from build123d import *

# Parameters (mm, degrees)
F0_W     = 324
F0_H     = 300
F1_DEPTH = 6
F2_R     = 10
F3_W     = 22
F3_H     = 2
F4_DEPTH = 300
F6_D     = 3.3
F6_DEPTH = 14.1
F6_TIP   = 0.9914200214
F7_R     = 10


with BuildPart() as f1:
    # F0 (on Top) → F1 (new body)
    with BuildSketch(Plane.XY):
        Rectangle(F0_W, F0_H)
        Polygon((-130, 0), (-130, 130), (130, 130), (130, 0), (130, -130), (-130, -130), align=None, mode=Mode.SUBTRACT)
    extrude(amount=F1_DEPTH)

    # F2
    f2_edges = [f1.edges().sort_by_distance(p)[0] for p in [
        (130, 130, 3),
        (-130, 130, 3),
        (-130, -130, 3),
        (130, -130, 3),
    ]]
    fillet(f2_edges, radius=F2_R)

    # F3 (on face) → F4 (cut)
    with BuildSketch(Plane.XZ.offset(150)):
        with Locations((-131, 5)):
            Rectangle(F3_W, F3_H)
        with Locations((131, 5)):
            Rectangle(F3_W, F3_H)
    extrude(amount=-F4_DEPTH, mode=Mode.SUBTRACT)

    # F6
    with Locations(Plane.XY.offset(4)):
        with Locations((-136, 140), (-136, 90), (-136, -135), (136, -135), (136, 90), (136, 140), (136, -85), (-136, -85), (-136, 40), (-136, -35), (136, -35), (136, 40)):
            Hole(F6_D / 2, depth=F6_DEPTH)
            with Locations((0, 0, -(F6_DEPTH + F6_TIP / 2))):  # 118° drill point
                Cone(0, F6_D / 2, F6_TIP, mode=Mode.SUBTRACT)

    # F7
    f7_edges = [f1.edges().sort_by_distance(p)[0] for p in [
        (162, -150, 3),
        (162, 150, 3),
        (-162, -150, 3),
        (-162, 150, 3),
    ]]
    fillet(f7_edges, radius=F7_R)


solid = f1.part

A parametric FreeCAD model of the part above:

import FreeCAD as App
import Part
import Sketcher
from FreeCAD import Vector
Q = App.Units.Quantity


def edges_at(feature, points):
    """Names of the edges that pass closest to the given points."""
    edges = feature.Shape.Edges
    near = lambda p: min(range(len(edges)), key=lambda i: edges[i].distToShape(Part.Vertex(*p))[0])
    return sorted({f"Edge{near(p) + 1}" for p in points})

doc = App.newDocument("Part")
body = doc.addObject("PartDesign::Body", "Body")

# Sketch on XY plane
sketch1 = doc.addObject("Sketcher::SketchObject", "Sketch")
body.addObject(sketch1)
sketch1.AttachmentSupport = (doc.XY_Plane, [""])
sketch1.MapMode = "FlatFace"
sketch1.addGeometry(Part.LineSegment(Vector(-162, 150, 0), Vector(-162, -150, 0)), False)
sketch1.addGeometry(Part.LineSegment(Vector(-162, -150, 0), Vector(162, -150, 0)), False)
sketch1.addGeometry(Part.LineSegment(Vector(162, -150, 0), Vector(162, 150, 0)), False)
sketch1.addGeometry(Part.LineSegment(Vector(162, 150, 0), Vector(-162, 150, 0)), False)
sketch1.addGeometry(Part.LineSegment(Vector(-130, -130, 0), Vector(-130, 130, 0)), False)
sketch1.addGeometry(Part.LineSegment(Vector(-130, 130, 0), Vector(130, 130, 0)), False)
sketch1.addGeometry(Part.LineSegment(Vector(130, 130, 0), Vector(130, -130, 0)), False)
sketch1.addGeometry(Part.LineSegment(Vector(130, -130, 0), Vector(-130, -130, 0)), False)
sketch1.addConstraint(Sketcher.Constraint("Coincident", 0, 2, 1, 1))
sketch1.addConstraint(Sketcher.Constraint("Coincident", 1, 2, 2, 1))
sketch1.addConstraint(Sketcher.Constraint("Coincident", 2, 2, 3, 1))
sketch1.addConstraint(Sketcher.Constraint("Coincident", 3, 2, 0, 1))
sketch1.addConstraint(Sketcher.Constraint("Coincident", 4, 2, 5, 1))
sketch1.addConstraint(Sketcher.Constraint("Coincident", 5, 2, 6, 1))
sketch1.addConstraint(Sketcher.Constraint("Coincident", 6, 2, 7, 1))
sketch1.addConstraint(Sketcher.Constraint("Coincident", 7, 2, 4, 1))
sketch1.addConstraint(Sketcher.Constraint("Vertical", 0))
sketch1.addConstraint(Sketcher.Constraint("Horizontal", 1))
sketch1.addConstraint(Sketcher.Constraint("Vertical", 2))
sketch1.addConstraint(Sketcher.Constraint("Horizontal", 3))
sketch1.addConstraint(Sketcher.Constraint("Vertical", 4))
sketch1.addConstraint(Sketcher.Constraint("Horizontal", 5))
sketch1.addConstraint(Sketcher.Constraint("Vertical", 6))
sketch1.addConstraint(Sketcher.Constraint("Horizontal", 7))
sketch1.addConstraint(Sketcher.Constraint("Symmetric", 0, 2, 2, 2, -1, 1))
sketch1.addConstraint(Sketcher.Constraint("Symmetric", 4, 2, 6, 2, -1, 1))
sketch1.addConstraint(Sketcher.Constraint("Equal", 7, 4))
sketch1.addConstraint(Sketcher.Constraint("DistanceX", 1, 1, 1, 2, Q("324 mm")))
sketch1.addConstraint(Sketcher.Constraint("DistanceX", 5, 1, 5, 2, Q("260 mm")))
sketch1.addConstraint(Sketcher.Constraint("DistanceY", 0, 2, 0, 1, Q("300 mm")))
pad1 = doc.addObject("PartDesign::Pad", "Pad")
body.addObject(pad1)
pad1.Profile = sketch1
pad1.Length = 6
doc.recompute()

fillet = doc.addObject("PartDesign::Fillet", "Fillet")
body.addObject(fillet)
fillet.Base = (pad1, edges_at(pad1, [
    (130, 130, 3),
    (-130, 130, 3),
    (-130, -130, 3),
    (130, -130, 3),
]))
fillet.Radius = 10

# Sketch on XZ plane
sketch2 = doc.addObject("Sketcher::SketchObject", "Sketch001")
body.addObject(sketch2)
sketch2.AttachmentSupport = (doc.XZ_Plane, [""])
sketch2.MapMode = "FlatFace"
sketch2.AttachmentOffset = App.Placement(Vector(0, 0, 150), App.Rotation())
sketch2.addGeometry(Part.LineSegment(Vector(-142, 6, 0), Vector(-142, 4, 0)), False)
sketch2.addGeometry(Part.LineSegment(Vector(-142, 4, 0), Vector(-120, 4, 0)), False)
sketch2.addGeometry(Part.LineSegment(Vector(-120, 4, 0), Vector(-120, 6, 0)), False)
sketch2.addGeometry(Part.LineSegment(Vector(-120, 6, 0), Vector(-142, 6, 0)), False)
sketch2.addGeometry(Part.LineSegment(Vector(120, 6, 0), Vector(120, 4, 0)), False)
sketch2.addGeometry(Part.LineSegment(Vector(120, 4, 0), Vector(142, 4, 0)), False)
sketch2.addGeometry(Part.LineSegment(Vector(142, 4, 0), Vector(142, 6, 0)), False)
sketch2.addGeometry(Part.LineSegment(Vector(142, 6, 0), Vector(120, 6, 0)), False)
sketch2.addConstraint(Sketcher.Constraint("Coincident", 0, 2, 1, 1))
sketch2.addConstraint(Sketcher.Constraint("Coincident", 1, 2, 2, 1))
sketch2.addConstraint(Sketcher.Constraint("Coincident", 2, 2, 3, 1))
sketch2.addConstraint(Sketcher.Constraint("Coincident", 3, 2, 0, 1))
sketch2.addConstraint(Sketcher.Constraint("Coincident", 4, 2, 5, 1))
sketch2.addConstraint(Sketcher.Constraint("Coincident", 5, 2, 6, 1))
sketch2.addConstraint(Sketcher.Constraint("Coincident", 6, 2, 7, 1))
sketch2.addConstraint(Sketcher.Constraint("Coincident", 7, 2, 4, 1))
sketch2.addConstraint(Sketcher.Constraint("Vertical", 0))
sketch2.addConstraint(Sketcher.Constraint("Horizontal", 1))
sketch2.addConstraint(Sketcher.Constraint("Vertical", 2))
sketch2.addConstraint(Sketcher.Constraint("Horizontal", 3))
sketch2.addConstraint(Sketcher.Constraint("Vertical", 4))
sketch2.addConstraint(Sketcher.Constraint("Horizontal", 5))
sketch2.addConstraint(Sketcher.Constraint("Vertical", 6))
sketch2.addConstraint(Sketcher.Constraint("Horizontal", 7))
sketch2.addConstraint(Sketcher.Constraint("Symmetric", 1, 2, 4, 2, -2))
sketch2.addConstraint(Sketcher.Constraint("Symmetric", 3, 2, 6, 2, -2))
sketch2.addConstraint(Sketcher.Constraint("DistanceX", 1, 1, 1, 2, Q("22 mm")))
sketch2.addConstraint(Sketcher.Constraint("DistanceY", 0, 2, 0, 1, Q("2 mm")))
sketch2.addConstraint(Sketcher.Constraint("DistanceX", 0, 2, -1, 1, Q("142 mm")))
sketch2.addConstraint(Sketcher.Constraint("DistanceY", -1, 1, 0, 2, Q("4 mm")))
pocket1 = doc.addObject("PartDesign::Pocket", "Pocket")
body.addObject(pocket1)
pocket1.Profile = sketch2
pocket1.Length = 300

# Sketch on XY plane
sketch3 = doc.addObject("Sketcher::SketchObject", "Sketch002")
body.addObject(sketch3)
sketch3.AttachmentSupport = (doc.XY_Plane, [""])
sketch3.MapMode = "FlatFace"
sketch3.AttachmentOffset = App.Placement(Vector(0, 0, 4), App.Rotation())
sketch3.addGeometry(Part.Circle(Vector(-136, 140, 0), Vector(0, 0, 1), 1.6), False)
sketch3.addGeometry(Part.Circle(Vector(-136, 90, 0), Vector(0, 0, 1), 1.6), False)
sketch3.addGeometry(Part.Circle(Vector(-136, -135, 0), Vector(0, 0, 1), 1.6), False)
sketch3.addGeometry(Part.Circle(Vector(136, -135, 0), Vector(0, 0, 1), 1.6), False)
sketch3.addGeometry(Part.Circle(Vector(136, 90, 0), Vector(0, 0, 1), 1.6), False)
sketch3.addGeometry(Part.Circle(Vector(136, 140, 0), Vector(0, 0, 1), 1.6), False)
sketch3.addGeometry(Part.Circle(Vector(136, -85, 0), Vector(0, 0, 1), 1.6), False)
sketch3.addGeometry(Part.Circle(Vector(-136, -85, 0), Vector(0, 0, 1), 1.6), False)
sketch3.addGeometry(Part.Circle(Vector(-136, 40, 0), Vector(0, 0, 1), 1.6), False)
sketch3.addGeometry(Part.Circle(Vector(-136, -35, 0), Vector(0, 0, 1), 1.6), False)
sketch3.addGeometry(Part.Circle(Vector(136, -35, 0), Vector(0, 0, 1), 1.6), False)
sketch3.addGeometry(Part.Circle(Vector(136, 40, 0), Vector(0, 0, 1), 1.6), False)
sketch3.addConstraint(Sketcher.Constraint("Equal", 0, 1))
sketch3.addConstraint(Sketcher.Constraint("Equal", 1, 2))
sketch3.addConstraint(Sketcher.Constraint("Equal", 2, 3))
sketch3.addConstraint(Sketcher.Constraint("Equal", 3, 4))
sketch3.addConstraint(Sketcher.Constraint("Equal", 4, 5))
sketch3.addConstraint(Sketcher.Constraint("Equal", 5, 6))
sketch3.addConstraint(Sketcher.Constraint("Equal", 6, 7))
sketch3.addConstraint(Sketcher.Constraint("Equal", 7, 8))
sketch3.addConstraint(Sketcher.Constraint("Equal", 8, 9))
sketch3.addConstraint(Sketcher.Constraint("Equal", 9, 10))
sketch3.addConstraint(Sketcher.Constraint("Equal", 10, 11))
sketch3.addConstraint(Sketcher.Constraint("Symmetric", 2, 3, 3, 3, -2))
sketch3.addConstraint(Sketcher.Constraint("Symmetric", 1, 3, 4, 3, -2))
sketch3.addConstraint(Sketcher.Constraint("Symmetric", 0, 3, 5, 3, -2))
sketch3.addConstraint(Sketcher.Constraint("Symmetric", 6, 3, 7, 3, -2))
sketch3.addConstraint(Sketcher.Constraint("Symmetric", 9, 3, 10, 3, -2))
sketch3.addConstraint(Sketcher.Constraint("Symmetric", 8, 3, 11, 3, -2))
sketch3.addConstraint(Sketcher.Constraint("Vertical", 0, 3, 1, 3))
sketch3.addConstraint(Sketcher.Constraint("Vertical", 1, 3, 2, 3))
sketch3.addConstraint(Sketcher.Constraint("Vertical", 5, 3, 6, 3))
sketch3.addConstraint(Sketcher.Constraint("Vertical", 7, 3, 8, 3))
sketch3.addConstraint(Sketcher.Constraint("Vertical", 8, 3, 9, 3))
sketch3.addConstraint(Sketcher.Constraint("Diameter", 0, Q("3.3 mm")))
sketch3.addConstraint(Sketcher.Constraint("DistanceX", 0, 3, -1, 1, Q("136 mm")))
sketch3.addConstraint(Sketcher.Constraint("DistanceY", -1, 1, 0, 3, Q("140 mm")))
sketch3.addConstraint(Sketcher.Constraint("DistanceY", -1, 1, 1, 3, Q("90 mm")))
sketch3.addConstraint(Sketcher.Constraint("DistanceY", 2, 3, -1, 1, Q("135 mm")))
sketch3.addConstraint(Sketcher.Constraint("DistanceY", 6, 3, -1, 1, Q("85 mm")))
sketch3.addConstraint(Sketcher.Constraint("DistanceY", -1, 1, 8, 3, Q("40 mm")))
sketch3.addConstraint(Sketcher.Constraint("DistanceY", 9, 3, -1, 1, Q("35 mm")))
doc.recompute()
hole = doc.addObject("PartDesign::Hole", "Hole")
body.addObject(hole)
hole.Profile = sketch3
hole.ThreadType = "None"
hole.Diameter = 3.3
hole.DepthType = "Dimension"
hole.Depth = 14.1
hole.DrillPoint = "Angled"
hole.DrillPointAngle = 118
doc.recompute()

fillet2 = doc.addObject("PartDesign::Fillet", "Fillet001")
body.addObject(fillet2)
fillet2.Base = (hole, edges_at(hole, [
    (162, -150, 3),
    (162, 150, 3),
    (-162, -150, 3),
    (-162, 150, 3),
]))
fillet2.Radius = 10

doc.recompute()
